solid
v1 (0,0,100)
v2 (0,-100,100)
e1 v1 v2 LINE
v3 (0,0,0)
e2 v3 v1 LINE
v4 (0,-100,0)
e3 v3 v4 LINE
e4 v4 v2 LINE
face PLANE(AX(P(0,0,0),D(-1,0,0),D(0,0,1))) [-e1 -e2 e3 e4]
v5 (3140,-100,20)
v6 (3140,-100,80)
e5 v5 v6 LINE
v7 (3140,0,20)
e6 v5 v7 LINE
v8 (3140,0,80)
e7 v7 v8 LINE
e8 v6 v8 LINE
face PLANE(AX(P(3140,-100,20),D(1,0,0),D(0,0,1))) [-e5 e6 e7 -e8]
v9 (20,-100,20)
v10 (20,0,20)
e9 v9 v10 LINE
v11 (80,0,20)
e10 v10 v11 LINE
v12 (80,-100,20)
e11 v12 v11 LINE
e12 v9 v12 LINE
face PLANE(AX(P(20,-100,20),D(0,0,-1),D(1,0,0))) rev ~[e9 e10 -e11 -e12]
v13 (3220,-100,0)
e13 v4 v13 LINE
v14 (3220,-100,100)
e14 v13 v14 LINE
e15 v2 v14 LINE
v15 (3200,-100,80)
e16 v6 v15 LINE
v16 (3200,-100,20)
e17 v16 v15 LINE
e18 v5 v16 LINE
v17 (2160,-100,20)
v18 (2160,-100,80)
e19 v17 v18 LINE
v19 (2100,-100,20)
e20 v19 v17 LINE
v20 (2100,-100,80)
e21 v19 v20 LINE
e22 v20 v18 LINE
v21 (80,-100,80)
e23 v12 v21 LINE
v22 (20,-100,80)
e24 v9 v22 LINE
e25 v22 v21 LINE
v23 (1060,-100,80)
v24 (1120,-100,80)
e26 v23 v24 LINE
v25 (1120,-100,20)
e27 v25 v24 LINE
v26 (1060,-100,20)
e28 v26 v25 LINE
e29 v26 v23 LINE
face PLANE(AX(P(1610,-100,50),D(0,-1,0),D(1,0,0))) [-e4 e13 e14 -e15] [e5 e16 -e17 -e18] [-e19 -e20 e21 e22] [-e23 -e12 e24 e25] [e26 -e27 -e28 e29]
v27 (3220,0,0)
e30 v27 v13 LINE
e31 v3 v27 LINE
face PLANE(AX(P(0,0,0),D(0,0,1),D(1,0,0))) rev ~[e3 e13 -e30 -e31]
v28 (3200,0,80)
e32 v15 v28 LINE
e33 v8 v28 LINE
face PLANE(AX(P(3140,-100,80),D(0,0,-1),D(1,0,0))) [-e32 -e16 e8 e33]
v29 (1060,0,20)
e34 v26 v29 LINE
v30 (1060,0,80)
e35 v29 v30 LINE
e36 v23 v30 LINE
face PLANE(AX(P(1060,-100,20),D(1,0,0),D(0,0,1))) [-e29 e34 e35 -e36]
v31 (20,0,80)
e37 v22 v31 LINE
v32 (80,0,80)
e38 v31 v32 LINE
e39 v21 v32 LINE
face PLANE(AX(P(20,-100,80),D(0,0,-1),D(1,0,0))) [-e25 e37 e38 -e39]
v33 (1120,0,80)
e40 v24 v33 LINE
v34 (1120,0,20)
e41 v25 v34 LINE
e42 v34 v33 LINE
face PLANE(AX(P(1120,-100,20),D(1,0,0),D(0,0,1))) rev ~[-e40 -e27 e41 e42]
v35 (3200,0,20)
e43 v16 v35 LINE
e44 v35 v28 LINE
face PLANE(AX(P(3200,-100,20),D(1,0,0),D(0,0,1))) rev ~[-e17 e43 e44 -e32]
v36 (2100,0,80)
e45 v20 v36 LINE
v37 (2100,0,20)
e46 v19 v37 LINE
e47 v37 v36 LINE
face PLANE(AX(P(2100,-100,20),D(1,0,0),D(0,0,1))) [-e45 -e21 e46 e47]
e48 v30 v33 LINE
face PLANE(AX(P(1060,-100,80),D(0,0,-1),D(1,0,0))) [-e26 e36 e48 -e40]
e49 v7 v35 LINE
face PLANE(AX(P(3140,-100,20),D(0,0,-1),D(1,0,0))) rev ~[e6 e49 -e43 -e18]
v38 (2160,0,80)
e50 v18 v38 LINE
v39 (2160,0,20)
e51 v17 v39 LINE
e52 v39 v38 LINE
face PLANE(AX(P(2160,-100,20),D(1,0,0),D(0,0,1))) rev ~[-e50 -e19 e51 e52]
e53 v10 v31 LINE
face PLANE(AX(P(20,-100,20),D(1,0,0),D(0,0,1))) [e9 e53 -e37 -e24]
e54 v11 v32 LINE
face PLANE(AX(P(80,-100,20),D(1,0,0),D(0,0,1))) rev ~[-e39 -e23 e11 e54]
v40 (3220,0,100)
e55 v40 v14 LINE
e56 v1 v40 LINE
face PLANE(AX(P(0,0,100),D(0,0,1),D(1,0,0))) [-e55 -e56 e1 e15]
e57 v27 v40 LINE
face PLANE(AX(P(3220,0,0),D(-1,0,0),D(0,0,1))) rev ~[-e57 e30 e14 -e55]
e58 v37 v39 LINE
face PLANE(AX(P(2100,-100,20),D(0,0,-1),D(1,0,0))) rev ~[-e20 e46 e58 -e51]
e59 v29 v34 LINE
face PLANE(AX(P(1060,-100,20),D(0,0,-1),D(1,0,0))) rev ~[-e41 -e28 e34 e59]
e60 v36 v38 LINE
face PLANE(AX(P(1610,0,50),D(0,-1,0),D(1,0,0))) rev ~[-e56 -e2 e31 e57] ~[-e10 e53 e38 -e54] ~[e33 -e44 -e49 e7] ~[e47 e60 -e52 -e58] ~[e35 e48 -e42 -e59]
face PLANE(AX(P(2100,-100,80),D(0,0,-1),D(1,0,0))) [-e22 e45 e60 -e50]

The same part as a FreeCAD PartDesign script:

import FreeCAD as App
import Part
import Sketcher
from FreeCAD import Vector


def add_polygon(sketch, points):
    """Adds a closed chain of lines whose ends are joined by coincident constraints."""
    first, n = sketch.GeometryCount, len(points)
    for a, b in zip(points, points[1:] + points[:1]):
        sketch.addGeometry(Part.LineSegment(App.Vector(*a, 0), App.Vector(*b, 0)), False)
    for i in range(n):
        sketch.addConstraint(Sketcher.Constraint("Coincident", first + i, 2, first + (i + 1) % n, 1))

doc = App.newDocument("Part")
body = doc.addObject("PartDesign::Body", "Body")

# Sketch on XZ plane
sketch1 = body.newObject("Sketcher::SketchObject", "Sketch")
sketch1.AttachmentSupport = (doc.getObject("XZ_Plane"), [""])
sketch1.MapMode = "FlatFace"
add_polygon(sketch1, [(0, 100), (0, 0), (3220, 0), (3220, 100)])  # lines 0-3
sketch1.addConstraint(Sketcher.Constraint("Vertical", 0))
sketch1.addConstraint(Sketcher.Constraint("Horizontal", 1))
sketch1.addConstraint(Sketcher.Constraint("Vertical", 2))
sketch1.addConstraint(Sketcher.Constraint("Horizontal", 3))
sketch1.addConstraint(Sketcher.Constraint("Coincident", 0, 2, -1, 1))
sketch1.addConstraint(Sketcher.Constraint("DistanceX", 1, 1, 1, 2, 3220.0))
sketch1.addConstraint(Sketcher.Constraint("DistanceY", 0, 2, 0, 1, 100.0))
pad1 = body.newObject("PartDesign::Pad", "Pad")
pad1.Profile = sketch1
pad1.Length = 100

# Sketch on XZ plane
sketch2 = body.newObject("Sketcher::SketchObject", "Sketch001")
sketch2.AttachmentSupport = (doc.getObject("XZ_Plane"), [""])
sketch2.MapMode = "FlatFace"
sketch2.AttachmentOffset = App.Placement(Vector(0, 0, 100), App.Rotation())
add_polygon(sketch2, [(20, 80), (20, 20), (80, 20), (80, 80)])  # lines 0-3
add_polygon(sketch2, [(1060, 80), (1060, 20), (1120, 20), (1120, 80)])  # lines 4-7
add_polygon(sketch2, [(2100, 80), (2100, 20), (2160, 20), (2160, 80)])  # lines 8-11
add_polygon(sketch2, [(3140, 80), (3140, 20), (3200, 20), (3200, 80)])  # lines 12-15
sketch2.addConstraint(Sketcher.Constraint("Vertical", 0))
sketch2.addConstraint(Sketcher.Constraint("Horizontal", 1))
sketch2.addConstraint(Sketcher.Constraint("Vertical", 2))
sketch2.addConstraint(Sketcher.Constraint("Horizontal", 3))
sketch2.addConstraint(Sketcher.Constraint("Vertical", 4))
sketch2.addConstraint(Sketcher.Constraint("Horizontal", 5))
sketch2.addConstraint(Sketcher.Constraint("Vertical", 6))
sketch2.addConstraint(Sketcher.Constraint("Horizontal", 7))
sketch2.addConstraint(Sketcher.Constraint("Vertical", 8))
sketch2.addConstraint(Sketcher.Constraint("Horizontal", 9))
sketch2.addConstraint(Sketcher.Constraint("Vertical", 10))
sketch2.addConstraint(Sketcher.Constraint("Horizontal", 11))
sketch2.addConstraint(Sketcher.Constraint("Vertical", 12))
sketch2.addConstraint(Sketcher.Constraint("Horizontal", 13))
sketch2.addConstraint(Sketcher.Constraint("Vertical", 14))
sketch2.addConstraint(Sketcher.Constraint("Horizontal", 15))
sketch2.addConstraint(Sketcher.Constraint("Horizontal", 1, 2, 4, 2))
sketch2.addConstraint(Sketcher.Constraint("Horizontal", 3, 2, 6, 2))
sketch2.addConstraint(Sketcher.Constraint("Horizontal", 5, 2, 8, 2))
sketch2.addConstraint(Sketcher.Constraint("Horizontal", 7, 2, 10, 2))
sketch2.addConstraint(Sketcher.Constraint("Horizontal", 9, 2, 12, 2))
sketch2.addConstraint(Sketcher.Constraint("Horizontal", 11, 2, 14, 2))
sketch2.addConstraint(Sketcher.Constraint("Equal", 3, 5))
sketch2.addConstraint(Sketcher.Constraint("Equal", 7, 9))
sketch2.addConstraint(Sketcher.Constraint("Equal", 11, 13))
sketch2.addConstraint(Sketcher.Constraint("Equal", 15, 0))
sketch2.addConstraint(Sketcher.Constraint("DistanceX", 1, 1, 1, 2, 60.0))
sketch2.addConstraint(Sketcher.Constraint("DistanceX", -1, 1, 0, 2, 20.0))
sketch2.addConstraint(Sketcher.Constraint("DistanceY", -1, 1, 0, 2, 20.0))
sketch2.addConstraint(Sketcher.Constraint("DistanceX", -1, 1, 4, 2, 1060.0))
sketch2.addConstraint(Sketcher.Constraint("DistanceX", -1, 1, 8, 2, 2100.0))
sketch2.addConstraint(Sketcher.Constraint("DistanceX", -1, 1, 12, 2, 3140.0))
pocket1 = body.newObject("PartDesign::Pocket", "Pocket")
pocket1.Profile = sketch2
pocket1.Type = "ThroughAll"

doc.recompute()
